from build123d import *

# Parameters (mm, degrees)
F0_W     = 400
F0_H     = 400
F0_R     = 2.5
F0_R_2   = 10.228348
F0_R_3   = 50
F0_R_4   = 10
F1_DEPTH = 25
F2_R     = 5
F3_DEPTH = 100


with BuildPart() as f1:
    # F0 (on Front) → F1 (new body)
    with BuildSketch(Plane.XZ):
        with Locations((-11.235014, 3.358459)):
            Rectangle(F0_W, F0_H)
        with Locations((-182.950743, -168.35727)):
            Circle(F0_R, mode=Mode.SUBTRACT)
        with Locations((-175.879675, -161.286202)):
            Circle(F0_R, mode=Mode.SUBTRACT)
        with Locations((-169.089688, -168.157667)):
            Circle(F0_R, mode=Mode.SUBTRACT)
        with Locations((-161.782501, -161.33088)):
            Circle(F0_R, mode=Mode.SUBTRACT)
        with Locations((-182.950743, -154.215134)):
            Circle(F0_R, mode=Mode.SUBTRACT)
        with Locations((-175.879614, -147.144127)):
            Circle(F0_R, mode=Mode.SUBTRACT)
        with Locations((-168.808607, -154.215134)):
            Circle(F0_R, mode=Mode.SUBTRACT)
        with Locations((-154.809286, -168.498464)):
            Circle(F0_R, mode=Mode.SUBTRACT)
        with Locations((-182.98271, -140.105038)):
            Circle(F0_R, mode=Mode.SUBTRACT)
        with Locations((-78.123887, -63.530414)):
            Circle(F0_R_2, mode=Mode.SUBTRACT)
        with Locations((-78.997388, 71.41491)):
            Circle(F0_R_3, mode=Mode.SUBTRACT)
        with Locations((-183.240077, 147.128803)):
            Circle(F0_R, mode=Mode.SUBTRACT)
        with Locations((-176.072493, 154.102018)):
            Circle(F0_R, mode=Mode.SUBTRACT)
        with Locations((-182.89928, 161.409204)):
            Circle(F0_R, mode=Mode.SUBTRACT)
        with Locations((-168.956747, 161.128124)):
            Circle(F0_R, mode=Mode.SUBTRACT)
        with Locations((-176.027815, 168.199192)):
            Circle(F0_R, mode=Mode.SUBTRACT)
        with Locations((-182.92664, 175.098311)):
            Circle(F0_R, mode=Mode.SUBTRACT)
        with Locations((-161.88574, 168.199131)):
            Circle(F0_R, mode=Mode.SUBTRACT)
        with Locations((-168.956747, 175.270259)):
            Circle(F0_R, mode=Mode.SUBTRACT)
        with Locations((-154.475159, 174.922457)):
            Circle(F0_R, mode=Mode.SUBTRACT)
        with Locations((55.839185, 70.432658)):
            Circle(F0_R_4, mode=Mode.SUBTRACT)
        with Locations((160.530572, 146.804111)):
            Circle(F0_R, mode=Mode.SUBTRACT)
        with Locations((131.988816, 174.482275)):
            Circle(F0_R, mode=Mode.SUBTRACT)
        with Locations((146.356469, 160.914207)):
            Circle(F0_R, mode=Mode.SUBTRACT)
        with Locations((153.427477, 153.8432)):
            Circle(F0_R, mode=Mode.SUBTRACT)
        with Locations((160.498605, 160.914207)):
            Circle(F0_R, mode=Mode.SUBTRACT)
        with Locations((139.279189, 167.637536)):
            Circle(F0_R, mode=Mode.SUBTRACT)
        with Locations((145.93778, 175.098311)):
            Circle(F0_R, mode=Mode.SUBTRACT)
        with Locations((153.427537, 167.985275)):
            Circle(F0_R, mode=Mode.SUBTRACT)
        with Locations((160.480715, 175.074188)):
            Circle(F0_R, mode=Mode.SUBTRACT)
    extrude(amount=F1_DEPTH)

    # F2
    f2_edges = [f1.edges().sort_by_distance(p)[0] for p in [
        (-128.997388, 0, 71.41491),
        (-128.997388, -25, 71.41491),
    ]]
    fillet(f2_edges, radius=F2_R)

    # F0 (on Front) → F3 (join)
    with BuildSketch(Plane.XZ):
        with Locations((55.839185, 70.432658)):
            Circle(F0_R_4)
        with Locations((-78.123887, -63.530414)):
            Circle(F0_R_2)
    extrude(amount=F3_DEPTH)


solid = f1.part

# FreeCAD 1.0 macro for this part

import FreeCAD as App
import Part
import Sketcher
from FreeCAD import Vector
Q = App.Units.Quantity


def edges_at(feature, points):
    """Names of the edges that pass closest to the given points."""
    edges = feature.Shape.Edges
    near = lambda p: min(range(len(edges)), key=lambda i: edges[i].distToShape(Part.Vertex(*p))[0])
    return sorted({f"Edge{near(p) + 1}" for p in points})

doc = App.newDocument("Part")
params = doc.addObject("Spreadsheet::Sheet", "Params")
for row, (alias, value) in enumerate([
    ("sketch1_diameter", "5 mm"),
    ("sketch1_diameter2", "100 mm"),
    ("sketch1_diameter3", "20 mm"),
    ("sketch1_width", "400 mm"),
    ("pad1_length", "25 mm"),
    ("fillet_radius", "5 mm"),
    ("sketch2_diameter", "20 mm"),
    ("pad2_length", "100 mm"),
], start=1):
    params.set(f"A{row}", alias)
    params.set(f"B{row}", "=" + value)
    params.setAlias(f"B{row}", alias)

body = doc.addObject("PartDesign::Body", "Body")

sketch1 = body.newObject("Sketcher::SketchObject", "Sketch")
sketch1.AttachmentSupport = (doc.getObject("XZ_Plane"), [""])
sketch1.MapMode = "FlatFace"
sketch1.addGeometry(Part.LineSegment(Vector(-211.235014, 203.358459, 0), Vector(-211.235014, -196.641541, 0)), False)
sketch1.addGeometry(Part.LineSegment(Vector(-211.235014, -196.641541, 0), Vector(188.764986, -196.641541, 0)), False)
sketch1.addGeometry(Part.LineSegment(Vector(188.764986, -196.641541, 0), Vector(188.764986, 203.358459, 0)), False)
sketch1.addGeometry(Part.LineSegment(Vector(188.764986, 203.358459, 0), Vector(-211.235014, 203.358459, 0)), False)
sketch1.addGeometry(Part.Circle(Vector(-182.950743, -168.35727, 0), Vector(0, 0, 1), 2.5), False)
sketch1.addGeometry(Part.Circle(Vector(-175.879675, -161.286202, 0), Vector(0, 0, 1), 2.5), False)
sketch1.addGeometry(Part.Circle(Vector(-169.089688, -168.157667, 0), Vector(0, 0, 1), 2.5), False)
sketch1.addGeometry(Part.Circle(Vector(-182.950743, -154.215134, 0), Vector(0, 0, 1), 2.5), False)
sketch1.addGeometry(Part.Circle(Vector(-168.808607, -154.215134, 0), Vector(0, 0, 1), 2.5), False)
sketch1.addGeometry(Part.Circle(Vector(-154.809286, -168.498464, 0), Vector(0, 0, 1), 2.5), False)
sketch1.addGeometry(Part.Circle(Vector(-161.782501, -161.33088, 0), Vector(0, 0, 1), 2.5), False)
sketch1.addGeometry(Part.Circle(Vector(-175.879614, -147.144127, 0), Vector(0, 0, 1), 2.5), False)
sketch1.addGeometry(Part.Circle(Vector(-182.98271, -140.105038, 0), Vector(0, 0, 1), 2.5), False)
sketch1.addGeometry(Part.Circle(Vector(-78.123887, -63.530414, 0), Vector(0, 0, 1), 10.228348), False)
sketch1.addGeometry(Part.Circle(Vector(-78.997388, 71.41491, 0), Vector(0, 0, 1), 50), False)
sketch1.addGeometry(Part.Circle(Vector(-183.240077, 147.128803, 0), Vector(0, 0, 1), 2.5), False)
sketch1.addGeometry(Part.Circle(Vector(-176.072493, 154.102018, 0), Vector(0, 0, 1), 2.5), False)
sketch1.addGeometry(Part.Circle(Vector(-182.89928, 161.409204, 0), Vector(0, 0, 1), 2.5), False)
sketch1.addGeometry(Part.Circle(Vector(-168.956747, 161.128124, 0), Vector(0, 0, 1), 2.5), False)
sketch1.addGeometry(Part.Circle(Vector(-176.027815, 168.199192, 0), Vector(0, 0, 1), 2.5), False)
sketch1.addGeometry(Part.Circle(Vector(-182.92664, 175.098311, 0), Vector(0, 0, 1), 2.5), False)
sketch1.addGeometry(Part.Circle(Vector(-168.956747, 175.270259, 0), Vector(0, 0, 1), 2.5), False)
sketch1.addGeometry(Part.Circle(Vector(-161.88574, 168.199131, 0), Vector(0, 0, 1), 2.5), False)
sketch1.addGeometry(Part.Circle(Vector(-154.475159, 174.922457, 0), Vector(0, 0, 1), 2.5), False)
sketch1.addGeometry(Part.Circle(Vector(55.839185, 70.432658, 0), Vector(0, 0, 1), 10), False)
sketch1.addGeometry(Part.Circle(Vector(160.530572, 146.804111, 0), Vector(0, 0, 1), 2.5), False)
sketch1.addGeometry(Part.Circle(Vector(153.427477, 153.8432, 0), Vector(0, 0, 1), 2.5), False)
sketch1.addGeometry(Part.Circle(Vector(139.279189, 167.637536, 0), Vector(0, 0, 1), 2.5), False)
sketch1.addGeometry(Part.Circle(Vector(131.988816, 174.482275, 0), Vector(0, 0, 1), 2.5), False)
sketch1.addGeometry(Part.Circle(Vector(146.356469, 160.914207, 0), Vector(0, 0, 1), 2.5), False)
sketch1.addGeometry(Part.Circle(Vector(160.498605, 160.914207, 0), Vector(0, 0, 1), 2.5), False)
sketch1.addGeometry(Part.Circle(Vector(145.93778, 175.098311, 0), Vector(0, 0, 1), 2.5), False)
sketch1.addGeometry(Part.Circle(Vector(153.427537, 167.985275, 0), Vector(0, 0, 1), 2.5), False)
sketch1.addGeometry(Part.Circle(Vector(160.480715, 175.074188, 0), Vector(0, 0, 1), 2.5), False)
sketch1.addConstraint(Sketcher.Constraint("Coincident", 0, 2, 1, 1))
sketch1.addConstraint(Sketcher.Constraint("Coincident", 1, 2, 2, 1))
sketch1.addConstraint(Sketcher.Constraint("Coincident", 2, 2, 3, 1))
sketch1.addConstraint(Sketcher.Constraint("Coincident", 3, 2, 0, 1))
sketch1.addConstraint(Sketcher.Constraint("Vertical", 0))
sketch1.addConstraint(Sketcher.Constraint("Horizontal", 1))
sketch1.addConstraint(Sketcher.Constraint("Vertical", 2))
sketch1.addConstraint(Sketcher.Constraint("Horizontal", 3))
sketch1.addConstraint(Sketcher.Constraint("Equal", 4, 5))
sketch1.addConstraint(Sketcher.Constraint("Equal", 5, 6))
sketch1.addConstraint(Sketcher.Constraint("Equal", 6, 7))
sketch1.addConstraint(Sketcher.Constraint("Equal", 7, 8))
sketch1.addConstraint(Sketcher.Constraint("Equal", 8, 9))
sketch1.addConstraint(Sketcher.Constraint("Equal", 9, 10))
sketch1.addConstraint(Sketcher.Constraint("Equal", 10, 11))
sketch1.addConstraint(Sketcher.Constraint("Equal", 11, 12))
sketch1.addConstraint(Sketcher.Constraint("Equal", 12, 15))
sketch1.addConstraint(Sketcher.Constraint("Equal", 15, 16))
sketch1.addConstraint(Sketcher.Constraint("Equal", 16, 17))
sketch1.addConstraint(Sketcher.Constraint("Equal", 17, 18))
sketch1.addConstraint(Sketcher.Constraint("Equal", 18, 19))
sketch1.addConstraint(Sketcher.Constraint("Equal", 19, 20))
sketch1.addConstraint(Sketcher.Constraint("Equal", 20, 21))
sketch1.addConstraint(Sketcher.Constraint("Equal", 21, 22))
sketch1.addConstraint(Sketcher.Constraint("Equal", 22, 23))
sketch1.addConstraint(Sketcher.Constraint("Equal", 23, 25))
sketch1.addConstraint(Sketcher.Constraint("Equal", 25, 26))
sketch1.addConstraint(Sketcher.Constraint("Equal", 26, 27))
sketch1.addConstraint(Sketcher.Constraint("Equal", 27, 28))
sketch1.addConstraint(Sketcher.Constraint("Equal", 28, 29))
sketch1.addConstraint(Sketcher.Constraint("Equal", 29, 30))
sketch1.addConstraint(Sketcher.Constraint("Equal", 30, 31))
sketch1.addConstraint(Sketcher.Constraint("Equal", 31, 32))
sketch1.addConstraint(Sketcher.Constraint("Equal", 32, 33))
sketch1.addConstraint(Sketcher.Constraint("Horizontal", 7, 3, 8, 3))
sketch1.addConstraint(Sketcher.Constraint("Horizontal", 29, 3, 30, 3))
sketch1.addConstraint(Sketcher.Constraint("Horizontal", 20, 3, 31, 3))
sketch1.addConstraint(Sketcher.Constraint("Vertical", 4, 3, 7, 3))
sketch1.addConstraint(Sketcher.Constraint("Vertical", 18, 3, 21, 3))
sketch1.addConstraint(Sketcher.Constraint("Equal", 3, 0))
sketch1.addConstraint(Sketcher.Constraint("Diameter", 4, Q("5 mm")))
sketch1.addConstraint(Sketcher.Constraint("Diameter", 14, Q("100 mm")))
sketch1.addConstraint(Sketcher.Constraint("Diameter", 24, Q("20 mm")))
sketch1.addConstraint(Sketcher.Constraint("DistanceX", 1, 1, 1, 2, Q("400 mm")))
sketch1.addConstraint(Sketcher.Constraint("Diameter", 13, Q("20.456696 mm")))
sketch1.addConstraint(Sketcher.Constraint("DistanceY", 5, 3, -1, 1, Q("161.286202 mm")))
sketch1.addConstraint(Sketcher.Constraint("DistanceX", 10, 3, -1, 1, Q("161.782501 mm")))
sketch1.addConstraint(Sketcher.Constraint("DistanceY", -1, 1, 26, 3, Q("153.8432 mm")))
sketch1.addConstraint(Sketcher.Constraint("DistanceX", 9, 3, 13, 3, Q("76.685399 mm")))
sketch1.addConstraint(Sketcher.Constraint("DistanceX", 14, 3, 13, 3, Q("0.873501 mm")))
sketch1.addConstraint(Sketcher.Constraint("DistanceY", 15, 3, 17, 3, Q("14.280401 mm")))
sketch1.addConstraint(Sketcher.Constraint("DistanceY", 24, 3, 23, 3, Q("104.489799 mm")))
sketch1.addConstraint(Sketcher.Constraint("DistanceY", 14, 3, 25, 3, Q("75.389201 mm")))
sketch1.addConstraint(Sketcher.Constraint("DistanceX", 24, 3, 1, 2, Q("132.925801 mm")))
sketch1.addConstraint(Sketcher.Constraint("DistanceY", 1, 2, 24, 3, Q("267.074199 mm")))
sketch1.addConstraint(Sketcher.Constraint("DistanceX", 3, 2, 19, 3, Q("35.207199 mm")))
sketch1.addConstraint(Sketcher.Constraint("DistanceY", 21, 3, 3, 2, Q("28.0882 mm")))
sketch1.addConstraint(Sketcher.Constraint("DistanceY", 4, 3, -1, 1, Q("168.35727 mm")))
sketch1.addConstraint(Sketcher.Constraint("DistanceX", 6, 3, -1, 1, Q("169.089688 mm")))
sketch1.addConstraint(Sketcher.Constraint("DistanceY", 10, 3, -1, 1, Q("161.33088 mm")))
sketch1.addConstraint(Sketcher.Constraint("DistanceX", 12, 3, -1, 1, Q("182.98271 mm")))
sketch1.addConstraint(Sketcher.Constraint("DistanceY", 12, 3, -1, 1, Q("140.105038 mm")))
sketch1.addConstraint(Sketcher.Constraint("DistanceX", 14, 3, -1, 1, Q("78.997388 mm")))
sketch1.addConstraint(Sketcher.Constraint("DistanceY", -1, 1, 14, 3, Q("71.41491 mm")))
sketch1.addConstraint(Sketcher.Constraint("DistanceX", 17, 3, -1, 1, Q("182.89928 mm")))
sketch1.addConstraint(Sketcher.Constraint("DistanceX", 20, 3, -1, 1, Q("182.92664 mm")))
sketch1.addConstraint(Sketcher.Constraint("DistanceY", -1, 1, 20, 3, Q("175.098311 mm")))
sketch1.addConstraint(Sketcher.Constraint("DistanceY", -1, 1, 21, 3, Q("175.270259 mm")))
sketch1.addConstraint(Sketcher.Constraint("DistanceX", 22, 3, -1, 1, Q("161.88574 mm")))
sketch1.addConstraint(Sketcher.Constraint("DistanceY", -1, 1, 22, 3, Q("168.199131 mm")))
sketch1.addConstraint(Sketcher.Constraint("DistanceX", 23, 3, -1, 1, Q("154.475159 mm")))
sketch1.addConstraint(Sketcher.Constraint("DistanceX", -1, 1, 25, 3, Q("160.530572 mm")))
sketch1.addConstraint(Sketcher.Constraint("DistanceX", -1, 1, 27, 3, Q("139.279189 mm")))
sketch1.addConstraint(Sketcher.Constraint("DistanceX", -1, 1, 29, 3, Q("146.356469 mm")))
sketch1.addConstraint(Sketcher.Constraint("DistanceX", -1, 1, 31, 3, Q("145.93778 mm")))
sketch1.addConstraint(Sketcher.Constraint("DistanceY", -1, 1, 33, 3, Q("175.074188 mm")))
sketch1.addConstraint(Sketcher.Constraint("DistanceX", 6, 3, 8, 3, Q("0.281081 mm")))
sketch1.addConstraint(Sketcher.Constraint("DistanceY", 9, 3, 8, 3, Q("14.28333 mm")))
sketch1.addConstraint(Sketcher.Constraint("DistanceX", 5, 3, 9, 3, Q("21.070389 mm")))
sketch1.addConstraint(Sketcher.Constraint("DistanceX", 4, 3, 10, 3, Q("21.168242 mm")))
sketch1.addConstraint(Sketcher.Constraint("DistanceX", 7, 3, 11, 3, Q("7.071129 mm")))
sketch1.addConstraint(Sketcher.Constraint("DistanceY", 6, 3, 11, 3, Q("21.01354 mm")))
sketch1.addConstraint(Sketcher.Constraint("DistanceY", 11, 3, 12, 3, Q("7.039089 mm")))
sketch1.addConstraint(Sketcher.Constraint("DistanceY", 8, 3, 13, 3, Q("90.68472 mm")))
sketch1.addConstraint(Sketcher.Constraint("DistanceX", 15, 3, 14, 3, Q("104.242689 mm")))
sketch1.addConstraint(Sketcher.Constraint("DistanceY", 12, 3, 15, 3, Q("287.233841 mm")))
sketch1.addConstraint(Sketcher.Constraint("DistanceY", 13, 3, 16, 3, Q("217.632432 mm")))
sketch1.addConstraint(Sketcher.Constraint("DistanceX", 16, 3, 11, 3, Q("0.192879 mm")))
sketch1.addConstraint(Sketcher.Constraint("DistanceY", 13, 3, 17, 3, Q("224.939618 mm")))
sketch1.addConstraint(Sketcher.Constraint("DistanceY", 18, 3, 17, 3, Q("0.28108 mm")))
sketch1.addConstraint(Sketcher.Constraint("DistanceX", 15, 3, 18, 3, Q("14.28333 mm")))
sketch1.addConstraint(Sketcher.Constraint("DistanceY", 17, 3, 19, 3, Q("6.789988 mm")))
sketch1.addConstraint(Sketcher.Constraint("DistanceX", 16, 3, 19, 3, Q("0.044678 mm")))
sketch1.addConstraint(Sketcher.Constraint("DistanceX", 27, 3, 26, 3, Q("14.148288 mm")))
sketch1.addConstraint(Sketcher.Constraint("DistanceY", 24, 3, 27, 3, Q("97.204878 mm")))
sketch1.addConstraint(Sketcher.Constraint("DistanceY", 27, 3, 28, 3, Q("6.844739 mm")))
sketch1.addConstraint(Sketcher.Constraint("DistanceX", 28, 3, 26, 3, Q("21.438661 mm")))
sketch1.addConstraint(Sketcher.Constraint("DistanceY", 29, 3, 27, 3, Q("6.723329 mm")))
sketch1.addConstraint(Sketcher.Constraint("DistanceX", 28, 3, 30, 3, Q("28.509789 mm")))
sketch1.addConstraint(Sketcher.Constraint("DistanceY", 27, 3, 32, 3, Q("0.347739 mm")))
sketch1.addConstraint(Sketcher.Constraint("DistanceX", 32, 3, 33, 3, Q("7.053178 mm")))
sketch1.addConstraint(Sketcher.Constraint("DistanceX", 33, 3, 30, 3, Q("0.01789 mm")))
sketch1.setExpression("Constraints[40]", "Params.sketch1_diameter")
sketch1.setExpression("Constraints[41]", "Params.sketch1_diameter2")
sketch1.setExpression("Constraints[42]", "Params.sketch1_diameter3")
sketch1.setExpression("Constraints[43]", "Params.sketch1_width")
pad1 = body.newObject("PartDesign::Pad", "Pad")
pad1.Profile = sketch1
pad1.setExpression("Length", "Params.pad1_length")
doc.recompute()

fillet = body.newObject("PartDesign::Fillet", "Fillet")
fillet.Base = (pad1, edges_at(pad1, [(-128.997, 0, 71.415), (-128.997, -25, 71.415)]))
fillet.setExpression("Radius", "Params.fillet_radius")

sketch2 = body.newObject("Sketcher::SketchObject", "Sketch001")
sketch2.AttachmentSupport = (doc.getObject("XZ_Plane"), [""])
sketch2.MapMode = "FlatFace"
sketch2.addGeometry(Part.Circle(Vector(55.839185, 70.432658, 0), Vector(0, 0, 1), 10), False)
sketch2.addGeometry(Part.Circle(Vector(-78.123887, -63.530414, 0), Vector(0, 0, 1), 10.228348), False)
sketch2.addConstraint(Sketcher.Constraint("Diameter", 0, Q("20 mm")))
sketch2.addConstraint(Sketcher.Constraint("Diameter", 1, Q("20.456696 mm")))
sketch2.addConstraint(Sketcher.Constraint("DistanceY", -1, 1, 0, 3, Q("70.432658 mm")))
sketch2.addConstraint(Sketcher.Constraint("DistanceX", -1, 1, 0, 3, Q("55.839185 mm")))
sketch2.addConstraint(Sketcher.Constraint("DistanceX", 1, 3, -1, 1, Q("78.123887 mm")))
sketch2.addConstraint(Sketcher.Constraint("DistanceY", 1, 3, -1, 1, Q("63.530414 mm")))
sketch2.setExpression("Constraints[0]", "Params.sketch2_diameter")
pad2 = body.newObject("PartDesign::Pad", "Pad001")
pad2.Profile = sketch2
pad2.setExpression("Length", "Params.pad2_length")

doc.recompute()
